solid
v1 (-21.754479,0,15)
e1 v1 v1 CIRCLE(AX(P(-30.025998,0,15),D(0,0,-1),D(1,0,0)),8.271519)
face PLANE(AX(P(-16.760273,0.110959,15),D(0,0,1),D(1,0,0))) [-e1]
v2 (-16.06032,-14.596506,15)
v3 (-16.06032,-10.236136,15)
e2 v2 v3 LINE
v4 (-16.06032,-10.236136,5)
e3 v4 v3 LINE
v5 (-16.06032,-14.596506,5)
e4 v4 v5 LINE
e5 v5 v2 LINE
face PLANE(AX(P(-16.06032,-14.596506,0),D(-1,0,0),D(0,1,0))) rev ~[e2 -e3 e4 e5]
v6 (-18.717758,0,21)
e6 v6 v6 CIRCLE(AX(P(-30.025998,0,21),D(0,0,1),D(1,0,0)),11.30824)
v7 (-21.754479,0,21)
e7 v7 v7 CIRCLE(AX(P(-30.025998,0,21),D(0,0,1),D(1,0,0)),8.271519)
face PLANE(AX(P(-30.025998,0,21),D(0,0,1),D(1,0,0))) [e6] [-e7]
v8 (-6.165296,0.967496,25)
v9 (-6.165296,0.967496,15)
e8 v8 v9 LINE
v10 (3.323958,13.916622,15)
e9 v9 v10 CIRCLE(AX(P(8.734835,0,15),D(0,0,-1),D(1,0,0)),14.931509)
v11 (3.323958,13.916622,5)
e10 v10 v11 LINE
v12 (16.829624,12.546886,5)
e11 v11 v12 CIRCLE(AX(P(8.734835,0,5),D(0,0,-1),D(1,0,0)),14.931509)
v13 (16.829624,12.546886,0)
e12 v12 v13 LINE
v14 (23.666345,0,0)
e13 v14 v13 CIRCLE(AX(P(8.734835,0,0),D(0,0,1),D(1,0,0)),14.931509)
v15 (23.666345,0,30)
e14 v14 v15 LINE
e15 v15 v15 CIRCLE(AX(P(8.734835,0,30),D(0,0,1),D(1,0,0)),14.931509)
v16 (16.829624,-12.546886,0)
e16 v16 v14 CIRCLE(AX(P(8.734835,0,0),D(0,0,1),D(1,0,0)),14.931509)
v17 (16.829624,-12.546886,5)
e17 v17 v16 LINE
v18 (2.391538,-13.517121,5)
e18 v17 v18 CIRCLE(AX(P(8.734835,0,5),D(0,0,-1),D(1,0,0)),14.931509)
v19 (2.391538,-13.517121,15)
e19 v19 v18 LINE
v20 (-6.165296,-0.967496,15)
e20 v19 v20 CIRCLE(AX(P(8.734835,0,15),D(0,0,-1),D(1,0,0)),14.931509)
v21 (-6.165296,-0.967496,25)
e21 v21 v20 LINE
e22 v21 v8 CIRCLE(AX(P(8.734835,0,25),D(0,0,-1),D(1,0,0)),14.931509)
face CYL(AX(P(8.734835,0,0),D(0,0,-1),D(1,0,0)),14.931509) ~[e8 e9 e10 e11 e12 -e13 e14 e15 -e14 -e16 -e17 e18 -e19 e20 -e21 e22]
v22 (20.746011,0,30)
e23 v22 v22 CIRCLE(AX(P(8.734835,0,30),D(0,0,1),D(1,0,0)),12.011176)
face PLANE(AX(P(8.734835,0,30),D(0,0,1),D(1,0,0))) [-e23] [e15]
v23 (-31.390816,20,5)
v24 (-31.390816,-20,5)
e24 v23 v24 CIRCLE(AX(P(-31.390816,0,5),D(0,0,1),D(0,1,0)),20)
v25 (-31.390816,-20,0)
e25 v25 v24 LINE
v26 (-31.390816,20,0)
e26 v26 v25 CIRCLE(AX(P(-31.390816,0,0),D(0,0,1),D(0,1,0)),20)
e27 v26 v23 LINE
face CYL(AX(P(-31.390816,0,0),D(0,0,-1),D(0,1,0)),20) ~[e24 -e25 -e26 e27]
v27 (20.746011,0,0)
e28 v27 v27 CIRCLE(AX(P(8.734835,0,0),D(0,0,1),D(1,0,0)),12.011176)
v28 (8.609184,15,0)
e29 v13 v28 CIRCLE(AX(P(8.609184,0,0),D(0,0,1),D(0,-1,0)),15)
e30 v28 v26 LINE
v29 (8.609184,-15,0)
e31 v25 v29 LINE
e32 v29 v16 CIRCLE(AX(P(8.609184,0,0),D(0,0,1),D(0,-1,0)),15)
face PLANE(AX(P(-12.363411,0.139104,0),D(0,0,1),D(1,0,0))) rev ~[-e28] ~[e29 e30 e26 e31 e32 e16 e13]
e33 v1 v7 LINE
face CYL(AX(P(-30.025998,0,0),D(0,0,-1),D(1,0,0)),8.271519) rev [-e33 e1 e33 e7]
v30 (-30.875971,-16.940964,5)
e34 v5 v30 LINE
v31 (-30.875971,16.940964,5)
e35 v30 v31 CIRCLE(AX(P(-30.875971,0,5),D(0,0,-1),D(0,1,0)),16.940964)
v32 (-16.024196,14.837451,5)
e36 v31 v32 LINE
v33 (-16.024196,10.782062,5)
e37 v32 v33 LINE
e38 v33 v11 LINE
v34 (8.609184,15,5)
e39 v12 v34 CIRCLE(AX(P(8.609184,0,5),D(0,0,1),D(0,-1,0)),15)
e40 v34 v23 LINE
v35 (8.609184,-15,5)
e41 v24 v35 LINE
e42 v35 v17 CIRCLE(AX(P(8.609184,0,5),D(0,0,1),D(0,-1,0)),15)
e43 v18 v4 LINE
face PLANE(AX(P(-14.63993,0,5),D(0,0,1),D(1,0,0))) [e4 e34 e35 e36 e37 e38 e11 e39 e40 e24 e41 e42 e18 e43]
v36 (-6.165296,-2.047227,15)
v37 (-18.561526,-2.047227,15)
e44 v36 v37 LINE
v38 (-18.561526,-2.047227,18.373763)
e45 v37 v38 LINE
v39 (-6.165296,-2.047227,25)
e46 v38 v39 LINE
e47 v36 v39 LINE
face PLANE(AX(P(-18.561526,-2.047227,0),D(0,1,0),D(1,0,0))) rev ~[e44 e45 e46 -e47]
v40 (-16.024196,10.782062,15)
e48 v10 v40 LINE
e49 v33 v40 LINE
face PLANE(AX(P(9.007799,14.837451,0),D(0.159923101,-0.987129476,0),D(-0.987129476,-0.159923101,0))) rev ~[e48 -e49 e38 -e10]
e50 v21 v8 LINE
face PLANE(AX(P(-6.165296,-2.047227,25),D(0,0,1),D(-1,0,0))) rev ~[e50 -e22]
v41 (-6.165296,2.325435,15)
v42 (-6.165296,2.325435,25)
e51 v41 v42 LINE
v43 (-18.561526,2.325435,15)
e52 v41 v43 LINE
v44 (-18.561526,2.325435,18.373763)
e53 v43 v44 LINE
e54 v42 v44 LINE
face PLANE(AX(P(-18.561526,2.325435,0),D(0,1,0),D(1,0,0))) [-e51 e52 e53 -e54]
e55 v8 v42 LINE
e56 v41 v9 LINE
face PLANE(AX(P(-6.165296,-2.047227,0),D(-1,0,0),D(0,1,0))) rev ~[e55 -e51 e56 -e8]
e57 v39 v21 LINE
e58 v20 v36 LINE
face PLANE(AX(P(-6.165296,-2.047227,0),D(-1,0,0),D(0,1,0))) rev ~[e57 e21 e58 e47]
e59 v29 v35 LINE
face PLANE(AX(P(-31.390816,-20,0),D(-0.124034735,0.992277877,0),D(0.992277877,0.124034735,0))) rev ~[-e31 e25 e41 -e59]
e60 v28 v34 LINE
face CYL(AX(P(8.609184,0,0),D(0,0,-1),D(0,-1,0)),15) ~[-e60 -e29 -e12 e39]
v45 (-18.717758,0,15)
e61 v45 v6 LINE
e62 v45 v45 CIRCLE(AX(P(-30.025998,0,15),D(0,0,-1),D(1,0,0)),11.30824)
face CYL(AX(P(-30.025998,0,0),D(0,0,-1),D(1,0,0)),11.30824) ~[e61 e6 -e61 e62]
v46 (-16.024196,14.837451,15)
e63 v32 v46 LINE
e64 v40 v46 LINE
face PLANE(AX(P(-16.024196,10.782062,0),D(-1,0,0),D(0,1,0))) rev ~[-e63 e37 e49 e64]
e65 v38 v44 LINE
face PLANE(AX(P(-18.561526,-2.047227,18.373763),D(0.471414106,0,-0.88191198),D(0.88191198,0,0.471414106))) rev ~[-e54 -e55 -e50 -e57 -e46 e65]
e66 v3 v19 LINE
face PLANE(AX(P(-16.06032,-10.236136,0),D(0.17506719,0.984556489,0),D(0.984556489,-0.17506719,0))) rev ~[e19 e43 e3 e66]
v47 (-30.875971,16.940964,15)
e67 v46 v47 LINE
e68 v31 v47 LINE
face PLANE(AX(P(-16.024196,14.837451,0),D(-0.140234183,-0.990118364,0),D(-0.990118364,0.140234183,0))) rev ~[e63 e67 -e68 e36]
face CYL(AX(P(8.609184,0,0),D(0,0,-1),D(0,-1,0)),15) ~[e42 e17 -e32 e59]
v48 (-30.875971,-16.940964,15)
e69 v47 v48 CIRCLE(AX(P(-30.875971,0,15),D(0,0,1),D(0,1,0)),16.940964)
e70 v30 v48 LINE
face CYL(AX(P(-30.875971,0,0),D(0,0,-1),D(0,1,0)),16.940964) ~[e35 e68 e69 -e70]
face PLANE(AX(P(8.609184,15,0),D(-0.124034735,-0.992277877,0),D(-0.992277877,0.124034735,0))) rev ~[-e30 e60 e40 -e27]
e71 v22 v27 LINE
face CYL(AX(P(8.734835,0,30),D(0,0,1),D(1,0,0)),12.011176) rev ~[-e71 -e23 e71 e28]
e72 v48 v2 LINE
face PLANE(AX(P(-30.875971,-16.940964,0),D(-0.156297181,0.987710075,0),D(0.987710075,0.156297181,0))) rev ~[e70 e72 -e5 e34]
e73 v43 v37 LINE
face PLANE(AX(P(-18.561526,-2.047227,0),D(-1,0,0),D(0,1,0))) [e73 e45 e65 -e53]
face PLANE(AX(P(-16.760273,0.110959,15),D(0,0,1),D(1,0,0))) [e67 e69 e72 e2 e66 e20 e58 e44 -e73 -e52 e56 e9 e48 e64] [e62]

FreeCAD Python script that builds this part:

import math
import FreeCAD as App
import Part
import Sketcher

doc = App.newDocument("Part")
params = doc.addObject("Spreadsheet::Sheet", "Params")
for row, (alias, value) in enumerate([
    ("sketch1_radius", "20 mm"),
    ("sketch1_radius2", "15 mm"),
    ("pad1_length", "5 mm"),
    ("pad2_length", "30 mm"),
    ("sketch3_length", "15 mm"),
    ("pad3_length", "15 mm"),
    ("pad4_length", "21 mm"),
    ("pad5_length", "25 mm"),
    ("pocket1_length", "25 mm"),
    ("pocket2_length", "30 mm"),
], start=1):
    params.set(f"A{row}", alias)
    params.set(f"B{row}", "=" + value)
    params.setAlias(f"B{row}", alias)

body = doc.addObject("PartDesign::Body", "Body")

# Sketch on XY plane
sketch1 = body.newObject("Sketcher::SketchObject", "Sketch")
sketch1.AttachmentSupport = (doc.getObject("XY_Plane"), [""])
sketch1.MapMode = "FlatFace"
sketch1.addGeometry([
    Part.LineSegment(App.Vector(9, 15, 0), App.Vector(-31, 20, 0)),
    Part.ArcOfCircle(Part.Circle(App.Vector(-31, 0, 0), App.Vector(0, 0, 1), 20), math.radians(90), math.radians(270)),
    Part.LineSegment(App.Vector(-31, -20, 0), App.Vector(9, -15, 0)),
    Part.ArcOfCircle(Part.Circle(App.Vector(9, 0, 0), App.Vector(0, 0, 1), 15), math.radians(-90), math.radians(90)),
], False)
sketch1.addConstraint([
    Sketcher.Constraint("Coincident", 0, 2, 1, 1),
    Sketcher.Constraint("Coincident", 1, 2, 2, 1),
    Sketcher.Constraint("Coincident", 2, 2, 3, 1),
    Sketcher.Constraint("Coincident", 3, 2, 0, 1),
    Sketcher.Constraint("Symmetric", 0, 2, 1, 2, -1),
    Sketcher.Constraint("Symmetric", 2, 2, 3, 2, -1),
    Sketcher.Constraint("Vertical", 1, 3, 0, 2),
    Sketcher.Constraint("Vertical", 3, 3, 2, 2),
    Sketcher.Constraint("Radius", 1, 20.0),
    Sketcher.Constraint("Radius", 3, 15.0),
    Sketcher.Constraint("DistanceX", 1, 3, 3, 3, 40.0),
    Sketcher.Constraint("DistanceX", 1, 3, -1, 1, 31.390816),
])
sketch1.setExpression("Constraints[8]", "Params.sketch1_radius")
sketch1.setExpression("Constraints[9]", "Params.sketch1_radius2")
pad1 = body.newObject("PartDesign::Pad", "Pad")
pad1.Profile = sketch1
pad1.setExpression("Length", "Params.pad1_length")

# Sketch on XY plane
sketch2 = body.newObject("Sketcher::SketchObject", "Sketch001")
sketch2.AttachmentSupport = (doc.getObject("XY_Plane"), [""])
sketch2.MapMode = "FlatFace"
sketch2.addGeometry(Part.Circle(App.Vector(9, 0, 0), App.Vector(0, 0, 1), 15), False)
sketch2.addConstraint([
    Sketcher.Constraint("PointOnObject", 0, 3, -1),
    Sketcher.Constraint("Diameter", 0, 29.863019),
    Sketcher.Constraint("DistanceX", -1, 1, 0, 3, 8.734835),
])
pad2 = body.newObject("PartDesign::Pad", "Pad001")
pad2.Profile = sketch2
pad2.setExpression("Length", "Params.pad2_length")

# Sketch on XY plane
sketch3 = body.newObject("Sketcher::SketchObject", "Sketch002")
sketch3.AttachmentSupport = (doc.getObject("XY_Plane"), [""])
sketch3.MapMode = "FlatFace"
sketch3.addGeometry([
    Part.LineSegment(App.Vector(-16, 14.8, 0), App.Vector(-30.9, 16.9, 0)),  # 0
    Part.ArcOfCircle(Part.Circle(App.Vector(-30.9, 0, 0), App.Vector(0, 0, 1), 16.9), math.radians(90), math.radians(270)),  # 1
    Part.LineSegment(App.Vector(-30.9, -16.9, 0), App.Vector(-16.1, -14.6, 0)),  # 2
    Part.LineSegment(App.Vector(-16.1, -14.6, 0), App.Vector(-16.1, -10.2, 0)),  # 3
    Part.LineSegment(App.Vector(-16.1, -10.2, 0), App.Vector(8.5, -14.6, 0)),  # 4
    Part.LineSegment(App.Vector(8.5, -14.6, 0), App.Vector(9, 14.8, 0)),  # 5
    Part.LineSegment(App.Vector(9, 14.8, 0), App.Vector(-16, 10.8, 0)),  # 6
    Part.LineSegment(App.Vector(-16, 10.8, 0), App.Vector(-16, 14.8, 0)),  # 7
], False)
sketch3.addConstraint([
    Sketcher.Constraint("Coincident", 0, 2, 1, 1),
    Sketcher.Constraint("Coincident", 1, 2, 2, 1),
    Sketcher.Constraint("Coincident", 2, 2, 3, 1),
    Sketcher.Constraint("Coincident", 3, 2, 4, 1),
    Sketcher.Constraint("Coincident", 4, 2, 5, 1),
    Sketcher.Constraint("Coincident", 5, 2, 6, 1),
    Sketcher.Constraint("Coincident", 6, 2, 7, 1),
    Sketcher.Constraint("Coincident", 7, 2, 0, 1),
    Sketcher.Constraint("Vertical", 3),
    Sketcher.Constraint("Vertical", 7),
    Sketcher.Constraint("Symmetric", 0, 2, 1, 2, -1),
    Sketcher.Constraint("Horizontal", 2, 2, 4, 2),
    Sketcher.Constraint("Horizontal", 5, 2, 7, 2),
    Sketcher.Constraint("Vertical", 1, 3, 0, 2),
    Sketcher.Constraint("Equal", 0, 2),
    Sketcher.Constraint("Distance", 0, 15.0),
    Sketcher.Constraint("Radius", 1, 16.940964),
    Sketcher.Constraint("DistanceY", 3, 1, 3, 2, 4.360371),
    Sketcher.Constraint("DistanceY", 7, 1, 7, 2, 4.055389),
    Sketcher.Constraint("DistanceX", -1, 1, 5, 2, 9.007799),
    Sketcher.Constraint("DistanceY", 3, 2, 0, 2, 27.1771),
    Sketcher.Constraint("Distance", 4, 24.906842),
    Sketcher.Constraint("Distance", 5, 29.43902),
    Sketcher.Constraint("Distance", 6, 25.358371),
])
sketch3.setExpression("Constraints[15]", "Params.sketch3_length")
pad3 = body.newObject("PartDesign::Pad", "Pad002")
pad3.Profile = sketch3
pad3.setExpression("Length", "Params.pad3_length")

# Sketch on XY plane
sketch4 = body.newObject("Sketcher::SketchObject", "Sketch003")
sketch4.AttachmentSupport = (doc.getObject("XY_Plane"), [""])
sketch4.MapMode = "FlatFace"
sketch4.addGeometry([
    Part.Circle(App.Vector(-30, 0, 0), App.Vector(0, 0, 1), 11),
    Part.Circle(App.Vector(-30, 0, 0), App.Vector(0, 0, 1), 8),
], False)
sketch4.addConstraint([
    Sketcher.Constraint("Coincident", 1, 3, 0, 3),
    Sketcher.Constraint("PointOnObject", 0, 3, -1),
    Sketcher.Constraint("Diameter", 0, 22.616481),
    Sketcher.Constraint("Diameter", 1, 16.543038),
    Sketcher.Constraint("DistanceX", 0, 3, -1, 1, 30.025998),
])
pad4 = body.newObject("PartDesign::Pad", "Pad003")
pad4.Profile = sketch4
pad4.setExpression("Length", "Params.pad4_length")

# Sketch on XY plane
sketch5 = body.newObject("Sketcher::SketchObject", "Sketch004")
sketch5.AttachmentSupport = (doc.getObject("XY_Plane"), [""])
sketch5.MapMode = "FlatFace"
sketch5.addGeometry([
    Part.LineSegment(App.Vector(-18.6, 2.3, 0), App.Vector(-18.6, -2, 0)),
    Part.LineSegment(App.Vector(-18.6, -2, 0), App.Vector(-6.2, -2, 0)),
    Part.LineSegment(App.Vector(-6.2, -2, 0), App.Vector(-6.2, 2.3, 0)),
    Part.LineSegment(App.Vector(-6.2, 2.3, 0), App.Vector(-18.6, 2.3, 0)),
], False)
sketch5.addConstraint([
    Sketcher.Constraint("Coincident", 0, 2, 1, 1),
    Sketcher.Constraint("Coincident", 1, 2, 2, 1),
    Sketcher.Constraint("Coincident", 2, 2, 3, 1),
    Sketcher.Constraint("Coincident", 3, 2, 0, 1),
    Sketcher.Constraint("Vertical", 0),
    Sketcher.Constraint("Horizontal", 1),
    Sketcher.Constraint("Vertical", 2),
    Sketcher.Constraint("Horizontal", 3),
    Sketcher.Constraint("DistanceX", 1, 1, 1, 2, 12.39623),
    Sketcher.Constraint("DistanceY", 0, 2, 0, 1, 4.372663),
    Sketcher.Constraint("DistanceX", 0, 2, -1, 1, 18.561526),
    Sketcher.Constraint("DistanceY", 0, 2, -1, 1, 2.047227),
])
pad5 = body.newObject("PartDesign::Pad", "Pad004")
pad5.Profile = sketch5
pad5.setExpression("Length", "Params.pad5_length")

# Sketch on XZ plane
sketch6 = body.newObject("Sketcher::SketchObject", "Sketch005")
sketch6.AttachmentSupport = (doc.getObject("XZ_Plane"), [""])
sketch6.MapMode = "FlatFace"
sketch6.AttachmentOffset = App.Placement(App.Vector(0, 0, 2.047227), App.Rotation())
sketch6.addGeometry([
    Part.LineSegment(App.Vector(-19, 18, 0), App.Vector(-6, 25, 0)),
    Part.LineSegment(App.Vector(-6, 25, 0), App.Vector(-19, 25, 0)),
    Part.LineSegment(App.Vector(-19, 25, 0), App.Vector(-19, 18, 0)),
], False)
sketch6.addConstraint([
    Sketcher.Constraint("Coincident", 0, 2, 1, 1),
    Sketcher.Constraint("Coincident", 1, 2, 2, 1),
    Sketcher.Constraint("Coincident", 2, 2, 0, 1),
    Sketcher.Constraint("Horizontal", 1),
    Sketcher.Constraint("Vertical", 2),
    Sketcher.Constraint("DistanceY", -1, 1, 0, 2, 25.0),
    Sketcher.Constraint("DistanceX", 1, 2, 1, 1, 12.39623),
    Sketcher.Constraint("DistanceY", 2, 2, 2, 1, 6.626237),
    Sketcher.Constraint("DistanceX", 0, 2, -1, 1, 6.165296),
])
pocket1 = body.newObject("PartDesign::Pocket", "Pocket")
pocket1.Profile = sketch6
pocket1.setExpression("Length", "Params.pocket1_length")

# Sketch on XY plane
sketch7 = body.newObject("Sketcher::SketchObject", "Sketch006")
sketch7.AttachmentSupport = (doc.getObject("XY_Plane"), [""])
sketch7.MapMode = "FlatFace"
sketch7.AttachmentOffset = App.Placement(App.Vector(0, 0, 30), App.Rotation())
sketch7.addGeometry(Part.Circle(App.Vector(9, 0, 0), App.Vector(0, 0, 1), 12), False)
sketch7.addConstraint([
    Sketcher.Constraint("PointOnObject", 0, 3, -1),
    Sketcher.Constraint("Diameter", 0, 24.022352),
    Sketcher.Constraint("DistanceX", -1, 1, 0, 3, 8.734835),
])
pocket2 = body.newObject("PartDesign::Pocket", "Pocket001")
pocket2.Profile = sketch7
pocket2.setExpression("Length", "Params.pocket2_length")

doc.recompute()
